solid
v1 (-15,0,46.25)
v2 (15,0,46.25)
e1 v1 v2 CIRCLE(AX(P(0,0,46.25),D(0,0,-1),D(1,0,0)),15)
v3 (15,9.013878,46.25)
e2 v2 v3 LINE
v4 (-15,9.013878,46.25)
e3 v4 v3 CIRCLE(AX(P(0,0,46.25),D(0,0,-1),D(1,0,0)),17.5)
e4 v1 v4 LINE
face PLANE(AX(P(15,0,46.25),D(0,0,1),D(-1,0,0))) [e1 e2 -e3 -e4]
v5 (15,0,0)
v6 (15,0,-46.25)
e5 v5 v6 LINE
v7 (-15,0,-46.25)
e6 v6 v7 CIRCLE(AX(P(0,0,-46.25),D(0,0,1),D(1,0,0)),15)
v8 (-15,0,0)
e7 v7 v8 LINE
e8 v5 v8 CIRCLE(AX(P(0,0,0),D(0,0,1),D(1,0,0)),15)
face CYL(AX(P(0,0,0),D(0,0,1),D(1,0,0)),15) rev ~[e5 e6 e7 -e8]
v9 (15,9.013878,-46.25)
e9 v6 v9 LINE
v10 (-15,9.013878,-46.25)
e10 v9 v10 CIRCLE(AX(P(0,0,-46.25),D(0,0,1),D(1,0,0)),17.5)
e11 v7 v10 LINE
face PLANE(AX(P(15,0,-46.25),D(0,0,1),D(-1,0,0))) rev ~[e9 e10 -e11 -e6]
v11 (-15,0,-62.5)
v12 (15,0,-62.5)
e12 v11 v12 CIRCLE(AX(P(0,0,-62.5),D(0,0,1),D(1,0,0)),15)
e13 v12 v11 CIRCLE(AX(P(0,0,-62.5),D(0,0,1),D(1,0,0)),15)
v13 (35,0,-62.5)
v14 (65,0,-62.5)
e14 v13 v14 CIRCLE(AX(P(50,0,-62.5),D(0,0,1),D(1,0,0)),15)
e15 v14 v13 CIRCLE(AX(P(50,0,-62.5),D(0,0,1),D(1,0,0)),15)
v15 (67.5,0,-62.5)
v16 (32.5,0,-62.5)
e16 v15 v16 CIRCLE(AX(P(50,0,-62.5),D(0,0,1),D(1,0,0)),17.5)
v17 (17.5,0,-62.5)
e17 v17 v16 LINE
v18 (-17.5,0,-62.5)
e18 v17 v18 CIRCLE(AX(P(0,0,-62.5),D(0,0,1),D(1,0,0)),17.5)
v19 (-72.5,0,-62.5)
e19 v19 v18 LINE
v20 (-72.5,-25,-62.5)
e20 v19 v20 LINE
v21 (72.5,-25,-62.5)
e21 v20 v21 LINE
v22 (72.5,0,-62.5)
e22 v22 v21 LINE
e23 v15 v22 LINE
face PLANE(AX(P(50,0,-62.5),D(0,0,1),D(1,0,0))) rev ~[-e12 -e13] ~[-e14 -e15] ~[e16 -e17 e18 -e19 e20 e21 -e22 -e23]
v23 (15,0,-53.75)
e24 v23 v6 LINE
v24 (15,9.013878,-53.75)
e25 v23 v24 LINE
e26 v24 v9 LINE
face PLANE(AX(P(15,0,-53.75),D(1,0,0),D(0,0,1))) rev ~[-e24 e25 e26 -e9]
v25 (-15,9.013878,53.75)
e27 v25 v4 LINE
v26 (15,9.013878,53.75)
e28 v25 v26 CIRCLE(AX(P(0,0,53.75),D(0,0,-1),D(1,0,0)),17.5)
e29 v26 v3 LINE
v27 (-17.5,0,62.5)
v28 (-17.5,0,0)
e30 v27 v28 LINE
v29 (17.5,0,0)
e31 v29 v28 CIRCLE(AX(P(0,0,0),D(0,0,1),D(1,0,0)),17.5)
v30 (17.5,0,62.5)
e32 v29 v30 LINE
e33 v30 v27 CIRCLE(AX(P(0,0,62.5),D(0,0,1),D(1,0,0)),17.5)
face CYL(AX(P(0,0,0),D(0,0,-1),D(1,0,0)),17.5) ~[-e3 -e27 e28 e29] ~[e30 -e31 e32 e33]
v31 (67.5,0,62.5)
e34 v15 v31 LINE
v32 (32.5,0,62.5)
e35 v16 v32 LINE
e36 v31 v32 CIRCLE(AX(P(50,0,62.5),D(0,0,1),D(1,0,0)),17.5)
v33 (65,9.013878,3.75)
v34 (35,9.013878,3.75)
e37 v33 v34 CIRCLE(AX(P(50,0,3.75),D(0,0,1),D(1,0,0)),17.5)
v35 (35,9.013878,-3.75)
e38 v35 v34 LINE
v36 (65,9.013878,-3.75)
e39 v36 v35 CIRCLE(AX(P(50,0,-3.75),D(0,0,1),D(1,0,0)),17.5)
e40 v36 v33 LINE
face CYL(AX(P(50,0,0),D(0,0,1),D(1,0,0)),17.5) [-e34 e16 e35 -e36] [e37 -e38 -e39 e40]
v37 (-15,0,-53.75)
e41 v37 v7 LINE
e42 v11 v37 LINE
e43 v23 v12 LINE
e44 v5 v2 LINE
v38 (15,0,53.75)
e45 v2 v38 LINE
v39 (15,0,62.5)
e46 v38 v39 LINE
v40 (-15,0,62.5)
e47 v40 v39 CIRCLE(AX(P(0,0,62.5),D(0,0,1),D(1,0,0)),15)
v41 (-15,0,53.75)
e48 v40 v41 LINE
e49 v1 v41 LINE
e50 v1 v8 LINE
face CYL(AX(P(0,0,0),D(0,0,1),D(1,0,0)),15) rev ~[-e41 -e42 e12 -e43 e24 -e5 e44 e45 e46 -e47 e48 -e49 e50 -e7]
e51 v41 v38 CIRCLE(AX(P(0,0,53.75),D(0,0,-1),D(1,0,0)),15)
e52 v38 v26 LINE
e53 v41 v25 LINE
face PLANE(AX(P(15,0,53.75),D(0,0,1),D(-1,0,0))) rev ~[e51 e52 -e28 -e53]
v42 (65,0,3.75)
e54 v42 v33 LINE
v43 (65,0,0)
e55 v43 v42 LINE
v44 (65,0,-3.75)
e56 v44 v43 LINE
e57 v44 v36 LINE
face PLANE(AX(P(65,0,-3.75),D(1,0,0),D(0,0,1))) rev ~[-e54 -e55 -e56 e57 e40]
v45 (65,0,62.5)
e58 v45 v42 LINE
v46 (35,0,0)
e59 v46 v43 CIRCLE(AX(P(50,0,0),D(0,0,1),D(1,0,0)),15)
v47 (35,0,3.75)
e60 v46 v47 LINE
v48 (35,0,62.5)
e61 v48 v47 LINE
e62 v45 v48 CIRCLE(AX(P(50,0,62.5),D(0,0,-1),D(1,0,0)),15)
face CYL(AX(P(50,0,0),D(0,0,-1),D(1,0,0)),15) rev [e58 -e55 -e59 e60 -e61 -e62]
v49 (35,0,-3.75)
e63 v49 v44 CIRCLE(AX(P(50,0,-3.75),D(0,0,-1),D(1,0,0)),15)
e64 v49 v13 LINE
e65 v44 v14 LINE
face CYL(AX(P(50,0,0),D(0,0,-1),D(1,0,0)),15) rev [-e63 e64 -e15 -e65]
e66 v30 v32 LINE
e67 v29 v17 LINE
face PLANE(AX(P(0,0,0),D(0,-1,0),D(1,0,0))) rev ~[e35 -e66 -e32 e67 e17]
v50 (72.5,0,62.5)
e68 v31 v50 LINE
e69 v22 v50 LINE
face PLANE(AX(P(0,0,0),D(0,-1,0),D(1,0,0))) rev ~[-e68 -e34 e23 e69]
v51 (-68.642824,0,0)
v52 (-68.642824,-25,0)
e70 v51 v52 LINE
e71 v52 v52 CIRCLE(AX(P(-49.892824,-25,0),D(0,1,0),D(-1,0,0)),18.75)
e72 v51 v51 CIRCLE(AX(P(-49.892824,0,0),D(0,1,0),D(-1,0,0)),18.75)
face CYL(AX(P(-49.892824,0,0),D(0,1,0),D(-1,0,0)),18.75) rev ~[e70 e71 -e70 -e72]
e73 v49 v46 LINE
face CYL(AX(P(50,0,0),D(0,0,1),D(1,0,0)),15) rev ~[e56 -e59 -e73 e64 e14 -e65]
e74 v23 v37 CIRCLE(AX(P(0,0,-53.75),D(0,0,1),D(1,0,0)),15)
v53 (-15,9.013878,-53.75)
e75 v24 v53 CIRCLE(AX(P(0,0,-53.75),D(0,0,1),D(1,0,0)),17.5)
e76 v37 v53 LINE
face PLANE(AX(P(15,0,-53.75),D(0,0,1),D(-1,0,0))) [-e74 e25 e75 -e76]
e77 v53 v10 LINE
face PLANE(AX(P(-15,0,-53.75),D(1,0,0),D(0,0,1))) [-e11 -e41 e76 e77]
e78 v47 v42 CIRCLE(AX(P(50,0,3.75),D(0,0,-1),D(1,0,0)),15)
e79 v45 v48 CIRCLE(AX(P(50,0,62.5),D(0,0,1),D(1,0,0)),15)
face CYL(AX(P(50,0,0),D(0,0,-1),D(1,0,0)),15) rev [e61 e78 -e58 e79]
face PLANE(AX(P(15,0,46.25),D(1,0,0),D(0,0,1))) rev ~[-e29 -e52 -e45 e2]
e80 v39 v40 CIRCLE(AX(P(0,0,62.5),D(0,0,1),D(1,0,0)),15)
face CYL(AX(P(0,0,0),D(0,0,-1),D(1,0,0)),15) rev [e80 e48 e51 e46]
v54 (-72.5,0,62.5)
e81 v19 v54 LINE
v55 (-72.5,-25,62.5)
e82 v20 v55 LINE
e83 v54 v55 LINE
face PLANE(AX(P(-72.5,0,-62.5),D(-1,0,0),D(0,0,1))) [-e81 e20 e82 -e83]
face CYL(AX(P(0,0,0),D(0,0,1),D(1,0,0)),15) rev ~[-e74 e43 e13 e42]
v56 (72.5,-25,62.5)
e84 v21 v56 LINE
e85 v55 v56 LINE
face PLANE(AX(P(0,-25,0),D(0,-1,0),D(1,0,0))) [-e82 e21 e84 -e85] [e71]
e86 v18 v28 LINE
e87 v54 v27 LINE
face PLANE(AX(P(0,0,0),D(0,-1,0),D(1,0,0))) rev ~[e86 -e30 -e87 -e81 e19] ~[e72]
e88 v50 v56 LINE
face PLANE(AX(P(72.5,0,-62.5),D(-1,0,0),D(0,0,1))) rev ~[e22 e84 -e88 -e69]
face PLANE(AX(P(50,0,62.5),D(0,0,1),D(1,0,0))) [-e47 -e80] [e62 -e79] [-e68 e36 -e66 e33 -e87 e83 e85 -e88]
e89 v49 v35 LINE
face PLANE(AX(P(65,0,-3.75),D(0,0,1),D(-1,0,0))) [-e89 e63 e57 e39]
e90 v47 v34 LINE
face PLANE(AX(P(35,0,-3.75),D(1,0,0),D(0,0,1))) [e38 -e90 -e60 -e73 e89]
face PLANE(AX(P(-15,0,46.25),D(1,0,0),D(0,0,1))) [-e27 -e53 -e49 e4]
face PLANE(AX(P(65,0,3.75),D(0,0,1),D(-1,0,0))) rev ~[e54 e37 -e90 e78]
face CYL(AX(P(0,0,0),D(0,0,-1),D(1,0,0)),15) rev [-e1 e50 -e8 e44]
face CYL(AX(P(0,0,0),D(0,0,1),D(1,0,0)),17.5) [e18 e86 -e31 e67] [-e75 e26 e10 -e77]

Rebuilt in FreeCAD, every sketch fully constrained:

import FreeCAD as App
import Part
import Sketcher

V = App.Vector


def add_polygon(sketch, points):
    """Adds a closed chain of lines whose ends are joined by coincident constraints."""
    first, n = sketch.GeometryCount, len(points)
    for a, b in zip(points, points[1:] + points[:1]):
        sketch.addGeometry(Part.LineSegment(App.Vector(*a, 0), App.Vector(*b, 0)), False)
    for i in range(n):
        sketch.addConstraint(Sketcher.Constraint("Coincident", first + i, 2, first + (i + 1) % n, 1))

doc = App.newDocument("Part")
body = doc.addObject("PartDesign::Body", "Body")

# Sketch on XZ plane
sketch1 = body.newObject("Sketcher::SketchObject", "Sketch")
sketch1.AttachmentSupport = (doc.getObject("XZ_Plane"), [""])
sketch1.MapMode = "FlatFace"
add_polygon(sketch1, [(-72, 62), (-72, -62), (72, -62), (72, 62)])  # lines 0-3
sketch1.addConstraint([
    Sketcher.Constraint("Vertical", 0),
    Sketcher.Constraint("Horizontal", 1),
    Sketcher.Constraint("Vertical", 2),
    Sketcher.Constraint("Horizontal", 3),
    Sketcher.Constraint("Symmetric", 0, 2, 2, 2, -1, 1),
    Sketcher.Constraint("DistanceX", 1, 1, 1, 2, 145.0),
    Sketcher.Constraint("DistanceY", 0, 2, 0, 1, 125.0),
])
pad1 = body.newObject("PartDesign::Pad", "Pad")
pad1.Profile = sketch1
pad1.Length = 25

# Sketch on XY plane
sketch2 = body.newObject("Sketcher::SketchObject", "Sketch001")
sketch2.AttachmentSupport = (doc.getObject("XY_Plane"), [""])
sketch2.MapMode = "FlatFace"
sketch2.addGeometry([
    Part.Circle(V(0, 0, 0), V(0, 0, 1), 18),
    Part.Circle(V(0, 0, 0), V(0, 0, 1), 15),
    Part.Circle(V(50, 0, 0), V(0, 0, 1), 18),
    Part.Circle(V(50, 0, 0), V(0, 0, 1), 15),
], False)
sketch2.addConstraint([
    Sketcher.Constraint("Coincident", 0, 3, -1, 1),
    Sketcher.Constraint("Coincident", 1, 3, -1, 1),
    Sketcher.Constraint("Coincident", 3, 3, 2, 3),
    Sketcher.Constraint("Equal", 0, 2),
    Sketcher.Constraint("Equal", 1, 3),
    Sketcher.Constraint("PointOnObject", 2, 3, -1),
    Sketcher.Constraint("Diameter", 0, 35.0),
    Sketcher.Constraint("Diameter", 1, 30.0),
    Sketcher.Constraint("DistanceX", -1, 1, 2, 3, 50.0),
])
pad2 = body.newObject("PartDesign::Pad", "Pad001")
pad2.Profile = sketch2
pad2.Length = 125
pad2.Midplane = True

# Sketch on XZ plane
sketch3 = body.newObject("Sketcher::SketchObject", "Sketch002")
sketch3.AttachmentSupport = (doc.getObject("XZ_Plane"), [""])
sketch3.MapMode = "FlatFace"
add_polygon(sketch3, [(15, 54), (15, 46), (-15, 46), (-15, 54)])  # lines 0-3
add_polygon(sketch3, [(15, -46), (15, -54), (-15, -54), (-15, -46)])  # lines 4-7
sketch3.addConstraint([
    Sketcher.Constraint("Vertical", 0),
    Sketcher.Constraint("Horizontal", 1),
    Sketcher.Constraint("Vertical", 2),
    Sketcher.Constraint("Horizontal", 3),
    Sketcher.Constraint("Vertical", 4),
    Sketcher.Constraint("Horizontal", 5),
    Sketcher.Constraint("Vertical", 6),
    Sketcher.Constraint("Horizontal", 7),
    Sketcher.Constraint("Symmetric", 2, 2, 4, 2, -1, 1),
    Sketcher.Constraint("Symmetric", 0, 2, 6, 2, -1, 1),
    Sketcher.Constraint("Vertical", 3, 2, 4, 2),
    Sketcher.Constraint("DistanceX", 1, 2, 1, 1, 30.0),
    Sketcher.Constraint("DistanceY", 0, 2, 0, 1, 7.5),
    Sketcher.Constraint("DistanceY", 4, 2, 0, 2, 100.0),
])
pocket1 = body.newObject("PartDesign::Pocket", "Pocket")
pocket1.Profile = sketch3
pocket1.Length = 25

# Sketch on XZ plane
sketch4 = body.newObject("Sketcher::SketchObject", "Sketch003")
sketch4.AttachmentSupport = (doc.getObject("XZ_Plane"), [""])
sketch4.MapMode = "FlatFace"
add_polygon(sketch4, [(65, 4), (65, -4), (35, -4), (35, 4)])  # lines 0-3
sketch4.addConstraint([
    Sketcher.Constraint("Vertical", 0),
    Sketcher.Constraint("Horizontal", 1),
    Sketcher.Constraint("Vertical", 2),
    Sketcher.Constraint("Horizontal", 3),
    Sketcher.Constraint("DistanceX", 1, 2, 1, 1, 30.0),
    Sketcher.Constraint("DistanceY", 0, 2, 0, 1, 7.5),
    Sketcher.Constraint("DistanceX", -1, 1, 0, 2, 65.0),
    Sketcher.Constraint("DistanceY", 0, 2, -1, 1, 3.75),
])
pocket2 = body.newObject("PartDesign::Pocket", "Pocket001")
pocket2.Profile = sketch4
pocket2.Length = 25

# Sketch on XZ plane
sketch5 = body.newObject("Sketcher::SketchObject", "Sketch004")
sketch5.AttachmentSupport = (doc.getObject("XZ_Plane"), [""])
sketch5.MapMode = "FlatFace"
sketch5.addGeometry(Part.Circle(V(-50, 0, 0), V(0, 0, 1), 19), False)
sketch5.addConstraint([
    Sketcher.Constraint("PointOnObject", 0, 3, -1),
    Sketcher.Constraint("Diameter", 0, 37.5),
    Sketcher.Constraint("DistanceX", 0, 3, -1, 1, 49.892824),
])
pocket3 = body.newObject("PartDesign::Pocket", "Pocket002")
pocket3.Profile = sketch5
pocket3.Length = 2000
pocket3.Reversed = True

# Sketch on XY plane
sketch6 = body.newObject("Sketcher::SketchObject", "Sketch005")
sketch6.AttachmentSupport = (doc.getObject("XY_Plane"), [""])
sketch6.MapMode = "FlatFace"
sketch6.addGeometry([
    Part.Circle(V(50, 0, 0), V(0, 0, 1), 15),
    Part.Circle(V(0, 0, 0), V(0, 0, 1), 15),
], False)
sketch6.addConstraint([
    Sketcher.Constraint("Coincident", 1, 3, -1, 1),
    Sketcher.Constraint("Equal", 0, 1),
    Sketcher.Constraint("PointOnObject", 0, 3, -1),
    Sketcher.Constraint("Diameter", 0, 30.0),
    Sketcher.Constraint("DistanceX", -1, 1, 0, 3, 50.0),
])
pocket4 = body.newObject("PartDesign::Pocket", "Pocket003")
pocket4.Profile = sketch6
pocket4.Length = 25000
pocket4.Midplane = True

doc.recompute()
